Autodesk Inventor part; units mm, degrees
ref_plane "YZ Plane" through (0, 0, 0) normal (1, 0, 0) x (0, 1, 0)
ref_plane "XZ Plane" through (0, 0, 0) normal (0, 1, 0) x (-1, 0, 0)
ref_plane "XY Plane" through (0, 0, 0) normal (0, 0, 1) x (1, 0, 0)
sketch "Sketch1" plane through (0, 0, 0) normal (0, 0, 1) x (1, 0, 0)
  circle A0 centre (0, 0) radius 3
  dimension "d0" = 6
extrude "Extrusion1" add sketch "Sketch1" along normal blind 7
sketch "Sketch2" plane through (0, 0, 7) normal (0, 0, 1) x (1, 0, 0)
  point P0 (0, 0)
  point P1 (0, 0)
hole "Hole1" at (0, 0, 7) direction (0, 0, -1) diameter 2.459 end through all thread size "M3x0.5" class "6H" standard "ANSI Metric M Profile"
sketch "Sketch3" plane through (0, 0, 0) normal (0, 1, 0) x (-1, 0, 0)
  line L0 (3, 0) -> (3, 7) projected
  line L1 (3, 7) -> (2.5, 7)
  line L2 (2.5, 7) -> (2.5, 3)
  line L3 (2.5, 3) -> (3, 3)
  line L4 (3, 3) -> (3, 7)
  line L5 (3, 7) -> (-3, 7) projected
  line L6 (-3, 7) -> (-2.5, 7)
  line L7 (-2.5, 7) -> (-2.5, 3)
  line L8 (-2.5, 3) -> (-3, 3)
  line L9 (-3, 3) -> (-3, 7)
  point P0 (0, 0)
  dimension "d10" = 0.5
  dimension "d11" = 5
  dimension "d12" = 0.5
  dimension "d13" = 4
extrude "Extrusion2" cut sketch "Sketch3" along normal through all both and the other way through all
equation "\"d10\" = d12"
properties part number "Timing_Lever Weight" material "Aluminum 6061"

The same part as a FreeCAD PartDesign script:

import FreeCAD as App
import Part
import Sketcher
Q = App.Units.Quantity

doc = App.newDocument("Part")
params = doc.addObject("Spreadsheet::Sheet", "Params")
for row, (alias, value) in enumerate([
    ("sketch1_diameter", "6 mm"),
    ("pad1_length", "7 mm"),
    ("hole_diameter", "2.459 mm"),
    ("sketch3_height", "4 mm"),
    ("sketch3_width", "0.5 mm"),
], start=1):
    params.set(f"A{row}", alias)
    params.set(f"B{row}", "=" + value)
    params.setAlias(f"B{row}", alias)

body = doc.addObject("PartDesign::Body", "Body")

# Sketch on XY plane
sketch1 = body.newObject("Sketcher::SketchObject", "Sketch")
sketch1.AttachmentSupport = (doc.getObject("XY_Plane"), [""])
sketch1.MapMode = "FlatFace"
sketch1.addGeometry(Part.Circle(App.Vector(0, 0, 0), App.Vector(0, 0, 1), 3), False)
sketch1.addConstraint(Sketcher.Constraint("Coincident", 0, 3, -1, 1))
sketch1.addConstraint(Sketcher.Constraint("Diameter", 0, Q("6 mm")))
sketch1.setExpression("Constraints[1]", "Params.sketch1_diameter")
pad1 = body.newObject("PartDesign::Pad", "Pad")
pad1.Profile = sketch1
pad1.setExpression("Length", "Params.pad1_length")

# Sketch on XY plane
sketch2 = body.newObject("Sketcher::SketchObject", "Sketch001")
sketch2.AttachmentSupport = (doc.getObject("XY_Plane"), [""])
sketch2.MapMode = "FlatFace"
sketch2.AttachmentOffset = App.Placement(App.Vector(0, 0, 7), App.Rotation())
sketch2.addGeometry(Part.Circle(App.Vector(0, 0, 0), App.Vector(0, 0, 1), 1.2295), False)
sketch2.addConstraint(Sketcher.Constraint("Coincident", 0, 3, -1, 1))
sketch2.addConstraint(Sketcher.Constraint("Diameter", 0, Q("2.459 mm")))
doc.recompute()
hole = body.newObject("PartDesign::Hole", "Hole")
hole.Profile = sketch2
hole.ThreadType = "None"
hole.setExpression("Diameter", "Params.hole_diameter")
hole.DepthType = "ThroughAll"

# Sketch on XZ plane
sketch3 = body.newObject("Sketcher::SketchObject", "Sketch002")
sketch3.AttachmentSupport = (doc.getObject("XZ_Plane"), [""])
sketch3.MapMode = "FlatFace"
sketch3.addGeometry(Part.LineSegment(App.Vector(-2.5, 3, 0), App.Vector(-3, 3, 0)), False)
sketch3.addGeometry(Part.LineSegment(App.Vector(-3, 3, 0), App.Vector(-3, 7, 0)), False)
sketch3.addGeometry(Part.LineSegment(App.Vector(-3, 7, 0), App.Vector(-2.5, 7, 0)), False)
sketch3.addGeometry(Part.LineSegment(App.Vector(-2.5, 7, 0), App.Vector(-2.5, 3, 0)), False)
sketch3.addGeometry(Part.LineSegment(App.Vector(2.5, 3, 0), App.Vector(2.5, 7, 0)), False)
sketch3.addGeometry(Part.LineSegment(App.Vector(2.5, 7, 0), App.Vector(3, 7, 0)), False)
sketch3.addGeometry(Part.LineSegment(App.Vector(3, 7, 0), App.Vector(3, 3, 0)), False)
sketch3.addGeometry(Part.LineSegment(App.Vector(3, 3, 0), App.Vector(2.5, 3, 0)), False)
sketch3.addConstraint(Sketcher.Constraint("Coincident", 0, 2, 1, 1))
sketch3.addConstraint(Sketcher.Constraint("Coincident", 1, 2, 2, 1))
sketch3.addConstraint(Sketcher.Constraint("Coincident", 2, 2, 3, 1))
sketch3.addConstraint(Sketcher.Constraint("Coincident", 3, 2, 0, 1))
sketch3.addConstraint(Sketcher.Constraint("Coincident", 4, 2, 5, 1))
sketch3.addConstraint(Sketcher.Constraint("Coincident", 5, 2, 6, 1))
sketch3.addConstraint(Sketcher.Constraint("Coincident", 6, 2, 7, 1))
sketch3.addConstraint(Sketcher.Constraint("Coincident", 7, 2, 4, 1))
sketch3.addConstraint(Sketcher.Constraint("Horizontal", 0))
sketch3.addConstraint(Sketcher.Constraint("Vertical", 1))
sketch3.addConstraint(Sketcher.Constraint("Horizontal", 2))
sketch3.addConstraint(Sketcher.Constraint("Vertical", 3))
sketch3.addConstraint(Sketcher.Constraint("Vertical", 4))
sketch3.addConstraint(Sketcher.Constraint("Horizontal", 5))
sketch3.addConstraint(Sketcher.Constraint("Vertical", 6))
sketch3.addConstraint(Sketcher.Constraint("Horizontal", 7))
sketch3.addConstraint(Sketcher.Constraint("Symmetric", 2, 2, 4, 2, -2))
sketch3.addConstraint(Sketcher.Constraint("Symmetric", 0, 2, 6, 2, -2))
sketch3.addConstraint(Sketcher.Constraint("DistanceY", 1, 1, 1, 2, Q("4 mm")))
sketch3.addConstraint(Sketcher.Constraint("DistanceX", 0, 2, 0, 1, Q("0.5 mm")))
sketch3.addConstraint(Sketcher.Constraint("DistanceX", 2, 2, 4, 2, Q("5 mm")))
sketch3.addConstraint(Sketcher.Constraint("DistanceY", -1, 1, 0, 2, Q("3 mm")))
sketch3.setExpression("Constraints[18]", "Params.sketch3_height")
sketch3.setExpression("Constraints[19]", "Params.sketch3_width")
pocket1 = body.newObject("PartDesign::Pocket", "Pocket")
pocket1.Profile = sketch3
pocket1.Type = "ThroughAll"
pocket1.Midplane = True

doc.recompute()
